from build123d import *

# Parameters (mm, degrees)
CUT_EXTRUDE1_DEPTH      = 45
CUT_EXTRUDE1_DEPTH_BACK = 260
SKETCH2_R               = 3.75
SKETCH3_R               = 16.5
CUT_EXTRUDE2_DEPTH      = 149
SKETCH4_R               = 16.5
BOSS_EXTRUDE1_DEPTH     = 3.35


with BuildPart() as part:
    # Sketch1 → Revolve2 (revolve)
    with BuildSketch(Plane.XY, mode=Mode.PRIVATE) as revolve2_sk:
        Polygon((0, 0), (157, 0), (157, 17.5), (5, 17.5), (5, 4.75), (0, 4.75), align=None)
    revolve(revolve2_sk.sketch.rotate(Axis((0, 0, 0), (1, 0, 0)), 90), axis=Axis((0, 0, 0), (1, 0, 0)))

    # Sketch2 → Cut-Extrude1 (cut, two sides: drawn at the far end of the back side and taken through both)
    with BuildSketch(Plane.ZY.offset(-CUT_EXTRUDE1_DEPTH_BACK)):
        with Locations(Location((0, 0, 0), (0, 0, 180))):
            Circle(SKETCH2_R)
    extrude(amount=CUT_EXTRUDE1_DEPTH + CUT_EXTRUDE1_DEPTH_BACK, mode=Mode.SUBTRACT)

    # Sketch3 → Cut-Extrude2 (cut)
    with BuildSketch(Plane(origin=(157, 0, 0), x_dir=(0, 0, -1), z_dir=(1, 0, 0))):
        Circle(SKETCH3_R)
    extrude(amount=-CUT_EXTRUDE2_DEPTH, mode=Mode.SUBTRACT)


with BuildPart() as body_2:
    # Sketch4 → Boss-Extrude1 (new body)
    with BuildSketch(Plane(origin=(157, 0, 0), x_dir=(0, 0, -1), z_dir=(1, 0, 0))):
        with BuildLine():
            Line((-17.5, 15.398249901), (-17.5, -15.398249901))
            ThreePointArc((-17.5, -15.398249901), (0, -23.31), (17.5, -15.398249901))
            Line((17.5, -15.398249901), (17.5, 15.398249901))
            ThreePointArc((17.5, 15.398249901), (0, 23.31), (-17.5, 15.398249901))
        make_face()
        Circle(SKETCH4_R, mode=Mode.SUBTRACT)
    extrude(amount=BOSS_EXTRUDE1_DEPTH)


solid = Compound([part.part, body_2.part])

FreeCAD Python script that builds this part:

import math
import FreeCAD as App
import Part
import Sketcher

V = App.Vector
Q = App.Units.Quantity


def add_polygon(sketch, points):
    """Adds a closed chain of lines whose ends are joined by coincident constraints."""
    first, n = sketch.GeometryCount, len(points)
    for a, b in zip(points, points[1:] + points[:1]):
        sketch.addGeometry(Part.LineSegment(App.Vector(*a, 0), App.Vector(*b, 0)), False)
    for i in range(n):
        sketch.addConstraint(Sketcher.Constraint("Coincident", first + i, 2, first + (i + 1) % n, 1))

doc = App.newDocument("Part")
params = doc.addObject("Spreadsheet::Sheet", "Params")
for row, (alias, value) in enumerate([
    ("sketch1_width", "157 mm"),
    ("sketch1_width2", "152 mm"),
    ("sketch1_height", "17.5 mm"),
    ("sketch1_height2", "12.75 mm"),
    ("revolution_angle", "360 deg"),
    ("sketch2_diameter", "7.5 mm"),
    ("sketch3_diameter", "33 mm"),
    ("pocket2_length", "149 mm"),
    ("sketch4_diameter", "33 mm"),
    ("sketch4_radius", "23.31 mm"),
    ("pad1_length", "3.35 mm"),
], start=1):
    params.set(f"A{row}", alias)
    params.set(f"B{row}", "=" + value)
    params.setAlias(f"B{row}", alias)

body = doc.addObject("PartDesign::Body", "Body")

# Sketch on XY plane
sketch1 = body.newObject("Sketcher::SketchObject", "Sketch")
sketch1.AttachmentSupport = (doc.getObject("XY_Plane"), [""])
sketch1.MapMode = "FlatFace"
add_polygon(sketch1, [(0, 0), (157, 0), (157, 17.5), (5, 17.5), (5, 4.75), (0, 4.75)])  # lines 0-5
sketch1.addConstraint(Sketcher.Constraint("Horizontal", 0))
sketch1.addConstraint(Sketcher.Constraint("Vertical", 1))
sketch1.addConstraint(Sketcher.Constraint("Horizontal", 2))
sketch1.addConstraint(Sketcher.Constraint("Vertical", 3))
sketch1.addConstraint(Sketcher.Constraint("Horizontal", 4))
sketch1.addConstraint(Sketcher.Constraint("Vertical", 5))
sketch1.addConstraint(Sketcher.Constraint("Coincident", 5, 2, -1, 1))
sketch1.addConstraint(Sketcher.Constraint("DistanceX", 0, 1, 0, 2, Q("157 mm")))
sketch1.addConstraint(Sketcher.Constraint("DistanceX", 2, 2, 2, 1, Q("152 mm")))
sketch1.addConstraint(Sketcher.Constraint("DistanceY", 1, 1, 1, 2, Q("17.5 mm")))
sketch1.addConstraint(Sketcher.Constraint("DistanceY", 3, 2, 3, 1, Q("12.75 mm")))
sketch1.setExpression("Constraints[13]", "Params.sketch1_width")
sketch1.setExpression("Constraints[14]", "Params.sketch1_width2")
sketch1.setExpression("Constraints[15]", "Params.sketch1_height")
sketch1.setExpression("Constraints[16]", "Params.sketch1_height2")
revolution = body.newObject("PartDesign::Revolution", "Revolution")
revolution.Profile = sketch1
revolution.ReferenceAxis = (sketch1, ["H_Axis"])
revolution.setExpression("Angle", "Params.revolution_angle")

# Sketch on YZ plane
sketch2 = body.newObject("Sketcher::SketchObject", "Sketch001")
sketch2.AttachmentSupport = (doc.getObject("YZ_Plane"), [""])
sketch2.MapMode = "FlatFace"
sketch2.addGeometry(Part.Circle(V(0, 0, 0), V(0, 0, 1), 3.75), False)
sketch2.addConstraint(Sketcher.Constraint("Coincident", 0, 3, -1, 1))
sketch2.addConstraint(Sketcher.Constraint("Diameter", 0, Q("7.5 mm")))
sketch2.setExpression("Constraints[1]", "Params.sketch2_diameter")
pocket1 = body.newObject("PartDesign::Pocket", "Pocket")
pocket1.Profile = sketch2
pocket1.Type = "ThroughAll"
pocket1.Midplane = True

# Sketch on YZ plane
sketch3 = body.newObject("Sketcher::SketchObject", "Sketch002")
sketch3.AttachmentSupport = (doc.getObject("YZ_Plane"), [""])
sketch3.MapMode = "FlatFace"
sketch3.AttachmentOffset = App.Placement(V(0, 0, 157), App.Rotation())
sketch3.addGeometry(Part.Circle(V(0, 0, 0), V(0, 0, 1), 16.5), False)
sketch3.addConstraint(Sketcher.Constraint("Coincident", 0, 3, -1, 1))
sketch3.addConstraint(Sketcher.Constraint("Diameter", 0, Q("33 mm")))
sketch3.setExpression("Constraints[1]", "Params.sketch3_diameter")
pocket2 = body.newObject("PartDesign::Pocket", "Pocket001")
pocket2.Profile = sketch3
pocket2.setExpression("Length", "Params.pocket2_length")
body2 = doc.addObject("PartDesign::Body", "Body001")

# Sketch on YZ plane
sketch4 = body2.newObject("Sketcher::SketchObject", "Sketch003")
sketch4.AttachmentSupport = (doc.getObject("YZ_Plane001"), [""])
sketch4.MapMode = "FlatFace"
sketch4.AttachmentOffset = App.Placement(V(0, 0, 157), App.Rotation())
sketch4.addGeometry(Part.LineSegment(V(15.39825, 17.5, 0), V(-15.39825, 17.5, 0)), False)
sketch4.addGeometry(Part.ArcOfCircle(Part.Circle(V(0, 0, 0), V(0, 0, 1), 23.31), math.radians(131.344548), math.radians(228.655452)), False)
sketch4.addGeometry(Part.LineSegment(V(-15.39825, -17.5, 0), V(15.39825, -17.5, 0)), False)
sketch4.addGeometry(Part.ArcOfCircle(Part.Circle(V(0, 0, 0), V(0, 0, 1), 23.31), math.radians(-48.655452), math.radians(48.655452)), False)
sketch4.addGeometry(Part.Circle(V(0, 0, 0), V(0, 0, 1), 16.5), False)
sketch4.addConstraint(Sketcher.Constraint("Coincident", 0, 2, 1, 1))
sketch4.addConstraint(Sketcher.Constraint("Coincident", 1, 2, 2, 1))
sketch4.addConstraint(Sketcher.Constraint("Coincident", 2, 2, 3, 1))
sketch4.addConstraint(Sketcher.Constraint("Coincident", 3, 2, 0, 1))
sketch4.addConstraint(Sketcher.Constraint("Horizontal", 0))
sketch4.addConstraint(Sketcher.Constraint("Horizontal", 2))
sketch4.addConstraint(Sketcher.Constraint("Coincident", 1, 3, -1, 1))
sketch4.addConstraint(Sketcher.Constraint("Coincident", 3, 3, -1, 1))
sketch4.addConstraint(Sketcher.Constraint("Coincident", 4, 3, -1, 1))
sketch4.addConstraint(Sketcher.Constraint("Equal", 1, 3))
sketch4.addConstraint(Sketcher.Constraint("Vertical", 0, 2, 1, 2))
sketch4.addConstraint(Sketcher.Constraint("Diameter", 4, Q("33 mm")))
sketch4.addConstraint(Sketcher.Constraint("Radius", 1, Q("23.31 mm")))
sketch4.addConstraint(Sketcher.Constraint("DistanceY", 1, 2, 0, 2, Q("35 mm")))
sketch4.setExpression("Constraints[11]", "Params.sketch4_diameter")
sketch4.setExpression("Constraints[12]", "Params.sketch4_radius")
pad1 = body2.newObject("PartDesign::Pad", "Pad")
pad1.Profile = sketch4
pad1.setExpression("Length", "Params.pad1_length")

doc.recompute()
